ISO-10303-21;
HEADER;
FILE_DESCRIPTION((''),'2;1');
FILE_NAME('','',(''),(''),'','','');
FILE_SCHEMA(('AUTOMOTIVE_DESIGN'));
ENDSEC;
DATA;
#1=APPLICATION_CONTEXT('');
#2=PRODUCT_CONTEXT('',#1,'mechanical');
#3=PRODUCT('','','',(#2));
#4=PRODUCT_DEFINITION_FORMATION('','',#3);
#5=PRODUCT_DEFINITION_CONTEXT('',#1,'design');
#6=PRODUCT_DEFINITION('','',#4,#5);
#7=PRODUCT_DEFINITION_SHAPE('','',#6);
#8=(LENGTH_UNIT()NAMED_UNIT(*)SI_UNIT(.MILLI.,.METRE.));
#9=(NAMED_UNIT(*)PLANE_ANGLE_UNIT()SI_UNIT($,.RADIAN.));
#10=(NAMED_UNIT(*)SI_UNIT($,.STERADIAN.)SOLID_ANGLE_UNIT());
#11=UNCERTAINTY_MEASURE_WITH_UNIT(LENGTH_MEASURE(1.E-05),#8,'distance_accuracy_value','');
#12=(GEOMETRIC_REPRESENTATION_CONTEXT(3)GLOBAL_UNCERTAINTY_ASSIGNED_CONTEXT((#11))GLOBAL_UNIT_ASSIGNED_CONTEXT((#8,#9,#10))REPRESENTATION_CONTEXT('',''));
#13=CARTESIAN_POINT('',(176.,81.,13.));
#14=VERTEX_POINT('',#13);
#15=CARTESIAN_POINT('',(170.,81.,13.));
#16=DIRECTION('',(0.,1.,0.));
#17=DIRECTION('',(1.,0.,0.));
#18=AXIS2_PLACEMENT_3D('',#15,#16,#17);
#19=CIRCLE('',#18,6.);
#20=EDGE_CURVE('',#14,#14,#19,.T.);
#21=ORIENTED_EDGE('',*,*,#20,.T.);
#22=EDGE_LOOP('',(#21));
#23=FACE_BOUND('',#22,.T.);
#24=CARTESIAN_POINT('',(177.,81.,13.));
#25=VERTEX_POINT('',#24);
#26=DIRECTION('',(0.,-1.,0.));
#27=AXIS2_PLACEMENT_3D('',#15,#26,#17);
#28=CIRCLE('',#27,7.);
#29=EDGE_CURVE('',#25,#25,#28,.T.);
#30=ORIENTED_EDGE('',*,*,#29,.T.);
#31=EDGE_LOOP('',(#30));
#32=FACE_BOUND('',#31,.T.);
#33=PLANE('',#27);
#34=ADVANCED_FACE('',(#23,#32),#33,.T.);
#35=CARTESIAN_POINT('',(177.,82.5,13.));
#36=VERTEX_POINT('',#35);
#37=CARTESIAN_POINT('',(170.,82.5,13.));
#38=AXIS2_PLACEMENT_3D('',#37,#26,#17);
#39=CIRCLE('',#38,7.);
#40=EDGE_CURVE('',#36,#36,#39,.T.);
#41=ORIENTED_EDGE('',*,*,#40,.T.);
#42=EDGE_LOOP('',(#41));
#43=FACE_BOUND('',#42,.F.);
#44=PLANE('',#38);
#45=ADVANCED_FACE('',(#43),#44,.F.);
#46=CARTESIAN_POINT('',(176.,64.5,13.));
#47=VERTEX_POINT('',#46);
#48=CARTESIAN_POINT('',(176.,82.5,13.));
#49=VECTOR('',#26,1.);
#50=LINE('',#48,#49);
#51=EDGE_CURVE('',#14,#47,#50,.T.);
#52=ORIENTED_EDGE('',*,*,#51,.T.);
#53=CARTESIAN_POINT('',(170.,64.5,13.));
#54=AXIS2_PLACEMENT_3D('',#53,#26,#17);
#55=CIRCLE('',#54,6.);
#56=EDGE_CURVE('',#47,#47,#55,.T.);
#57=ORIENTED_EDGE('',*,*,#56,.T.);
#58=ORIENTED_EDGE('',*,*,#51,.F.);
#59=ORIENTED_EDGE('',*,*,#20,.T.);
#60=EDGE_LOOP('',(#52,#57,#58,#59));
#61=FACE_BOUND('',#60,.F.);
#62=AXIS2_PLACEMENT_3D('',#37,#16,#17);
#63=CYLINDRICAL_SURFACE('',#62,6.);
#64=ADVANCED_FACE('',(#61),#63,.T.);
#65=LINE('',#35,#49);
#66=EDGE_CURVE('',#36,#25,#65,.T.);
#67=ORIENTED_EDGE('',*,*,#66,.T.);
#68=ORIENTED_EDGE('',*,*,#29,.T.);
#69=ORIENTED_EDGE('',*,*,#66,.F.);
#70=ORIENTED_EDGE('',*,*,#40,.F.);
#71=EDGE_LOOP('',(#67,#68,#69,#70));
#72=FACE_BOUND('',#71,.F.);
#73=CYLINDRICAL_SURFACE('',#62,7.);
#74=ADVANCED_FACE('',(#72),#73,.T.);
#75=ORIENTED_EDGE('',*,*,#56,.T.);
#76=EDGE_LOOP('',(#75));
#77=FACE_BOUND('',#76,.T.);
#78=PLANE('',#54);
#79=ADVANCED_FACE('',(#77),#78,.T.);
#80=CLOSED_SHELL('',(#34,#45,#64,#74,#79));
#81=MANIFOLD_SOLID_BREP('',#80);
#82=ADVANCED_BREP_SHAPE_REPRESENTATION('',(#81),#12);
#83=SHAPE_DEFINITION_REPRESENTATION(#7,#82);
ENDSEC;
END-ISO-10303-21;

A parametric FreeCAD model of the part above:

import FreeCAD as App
import Part
import Sketcher

doc = App.newDocument("Part")
body = doc.addObject("PartDesign::Body", "Body")

# Sketch on XY plane
sketch1 = body.newObject("Sketcher::SketchObject", "Sketch")
sketch1.AttachmentSupport = (doc.getObject("XY_Plane"), [""])
sketch1.MapMode = "FlatFace"
sketch1.addGeometry(Part.Circle(App.Vector(0, 0, 0), App.Vector(0, 0, 1), 7), False)
sketch1.addConstraint([
    Sketcher.Constraint("Coincident", 0, 3, -1, 1),
    Sketcher.Constraint("Diameter", 0, 14.0),
])
pad1 = body.newObject("PartDesign::Pad", "Pad")
pad1.Profile = sketch1
pad1.Length = 1.5
body2 = doc.addObject("PartDesign::Body", "Body001")

# Sketch on XY plane
sketch2 = body2.newObject("Sketcher::SketchObject", "Sketch001")
sketch2.AttachmentSupport = (doc.getObject("XY_Plane001"), [""])
sketch2.MapMode = "FlatFace"
sketch2.addGeometry(Part.Circle(App.Vector(0, 0, 0), App.Vector(0, 0, 1), 6), False)
sketch2.addConstraint([
    Sketcher.Constraint("Coincident", 0, 3, -1, 1),
    Sketcher.Constraint("Diameter", 0, 12.0),
])
pad2 = body2.newObject("PartDesign::Pad", "Pad001")
pad2.Profile = sketch2
pad2.Length = 18
doc.recompute()

boolean = body2.newObject("PartDesign::Boolean", "Boolean")
boolean.Type = "Fuse"
boolean.addObjects([body])
body3 = doc.addObject("PartDesign::Body", "Body002")
doc.recompute()

body2.Placement = App.Placement(App.Vector(170, 82.5, 13), App.Rotation(App.Vector(-1, 0, 0), 270))
boolean2 = body3.newObject("PartDesign::Boolean", "Boolean001")
boolean2.Type = "Fuse"
boolean2.addObjects([body2])

doc.recompute()
